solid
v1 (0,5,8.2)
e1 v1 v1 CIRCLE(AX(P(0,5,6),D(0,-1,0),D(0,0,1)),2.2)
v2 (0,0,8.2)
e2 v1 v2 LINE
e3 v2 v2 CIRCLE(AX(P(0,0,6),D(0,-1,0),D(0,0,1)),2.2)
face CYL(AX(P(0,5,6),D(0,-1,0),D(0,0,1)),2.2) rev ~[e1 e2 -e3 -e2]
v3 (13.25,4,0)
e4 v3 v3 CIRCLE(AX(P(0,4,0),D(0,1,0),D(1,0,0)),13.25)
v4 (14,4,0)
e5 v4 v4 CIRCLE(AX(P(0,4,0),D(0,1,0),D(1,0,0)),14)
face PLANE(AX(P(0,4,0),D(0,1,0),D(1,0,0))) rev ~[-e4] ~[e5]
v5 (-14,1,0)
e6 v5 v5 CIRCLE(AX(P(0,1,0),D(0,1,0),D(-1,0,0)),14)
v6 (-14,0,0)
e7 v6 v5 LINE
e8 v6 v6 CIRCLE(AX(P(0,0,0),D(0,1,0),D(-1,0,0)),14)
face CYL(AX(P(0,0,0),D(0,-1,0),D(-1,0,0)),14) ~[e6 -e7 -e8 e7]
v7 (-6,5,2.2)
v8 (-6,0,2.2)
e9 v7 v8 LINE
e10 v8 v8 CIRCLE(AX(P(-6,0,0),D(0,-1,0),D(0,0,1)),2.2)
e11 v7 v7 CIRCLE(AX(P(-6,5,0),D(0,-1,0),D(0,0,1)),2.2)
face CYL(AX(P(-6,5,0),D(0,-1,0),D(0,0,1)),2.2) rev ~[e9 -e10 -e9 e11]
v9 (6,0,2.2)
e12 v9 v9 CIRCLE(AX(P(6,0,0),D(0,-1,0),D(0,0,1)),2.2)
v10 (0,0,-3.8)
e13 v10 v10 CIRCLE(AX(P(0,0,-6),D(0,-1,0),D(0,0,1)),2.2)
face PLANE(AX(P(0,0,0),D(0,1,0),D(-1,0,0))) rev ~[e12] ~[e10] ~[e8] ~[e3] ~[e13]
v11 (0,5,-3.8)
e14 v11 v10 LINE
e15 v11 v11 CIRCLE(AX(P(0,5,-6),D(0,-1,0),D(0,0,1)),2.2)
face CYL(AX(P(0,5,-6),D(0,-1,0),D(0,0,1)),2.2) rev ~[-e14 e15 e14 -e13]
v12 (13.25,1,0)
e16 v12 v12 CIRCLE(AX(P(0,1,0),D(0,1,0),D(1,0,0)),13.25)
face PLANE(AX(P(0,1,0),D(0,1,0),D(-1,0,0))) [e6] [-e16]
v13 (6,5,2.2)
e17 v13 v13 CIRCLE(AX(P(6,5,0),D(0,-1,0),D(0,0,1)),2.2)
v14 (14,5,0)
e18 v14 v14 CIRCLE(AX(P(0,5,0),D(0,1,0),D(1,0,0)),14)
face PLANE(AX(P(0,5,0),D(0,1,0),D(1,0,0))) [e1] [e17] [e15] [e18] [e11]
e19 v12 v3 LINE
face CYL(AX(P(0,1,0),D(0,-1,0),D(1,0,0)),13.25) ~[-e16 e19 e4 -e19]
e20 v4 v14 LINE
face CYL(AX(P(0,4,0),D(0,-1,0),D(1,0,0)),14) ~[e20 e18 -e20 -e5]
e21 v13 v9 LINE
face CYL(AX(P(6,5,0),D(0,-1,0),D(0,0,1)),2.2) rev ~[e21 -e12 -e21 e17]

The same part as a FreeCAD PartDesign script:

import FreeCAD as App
import Part
import Sketcher
from FreeCAD import Vector
Q = App.Units.Quantity

doc = App.newDocument("Part")
body = doc.addObject("PartDesign::Body", "Body")

# Sketch on XZ plane
sketch1 = body.newObject("Sketcher::SketchObject", "Sketch")
sketch1.AttachmentSupport = (doc.getObject("XZ_Plane"), [""])
sketch1.MapMode = "FlatFace"
sketch1.addGeometry(Part.Circle(Vector(0, 0, 0), Vector(0, 0, 1), 14), False)
sketch1.addConstraint([
    Sketcher.Constraint("Coincident", 0, 3, -1, 1),
    Sketcher.Constraint("Diameter", 0, Q("28 mm")),
])
pad1 = body.newObject("PartDesign::Pad", "Pad")
pad1.Profile = sketch1
pad1.Length = 1
pad1.Reversed = True

# Sketch on XZ plane
sketch2 = body.newObject("Sketcher::SketchObject", "Sketch001")
sketch2.AttachmentSupport = (doc.getObject("XZ_Plane"), [""])
sketch2.MapMode = "FlatFace"
sketch2.AttachmentOffset = App.Placement(Vector(0, 0, -1), App.Rotation())
sketch2.addGeometry(Part.Circle(Vector(0, 0, 0), Vector(0, 0, 1), 13.25), False)
sketch2.addConstraint([
    Sketcher.Constraint("Coincident", 0, 3, -1, 1),
    Sketcher.Constraint("Diameter", 0, Q("26.5 mm")),
])
pad2 = body.newObject("PartDesign::Pad", "Pad001")
pad2.Profile = sketch2
pad2.Length = 3
pad2.Reversed = True

# Sketch on XZ plane
sketch3 = body.newObject("Sketcher::SketchObject", "Sketch002")
sketch3.AttachmentSupport = (doc.getObject("XZ_Plane"), [""])
sketch3.MapMode = "FlatFace"
sketch3.AttachmentOffset = App.Placement(Vector(0, 0, -4), App.Rotation())
sketch3.addGeometry(Part.Circle(Vector(0, 0, 0), Vector(0, 0, 1), 14), False)
sketch3.addConstraint([
    Sketcher.Constraint("Coincident", 0, 3, -1, 1),
    Sketcher.Constraint("Diameter", 0, Q("28 mm")),
])
pad3 = body.newObject("PartDesign::Pad", "Pad002")
pad3.Profile = sketch3
pad3.Length = 1
pad3.Reversed = True

# Sketch on XZ plane
sketch4 = body.newObject("Sketcher::SketchObject", "Sketch003")
sketch4.AttachmentSupport = (doc.getObject("XZ_Plane"), [""])
sketch4.MapMode = "FlatFace"
sketch4.AttachmentOffset = App.Placement(Vector(0, 0, -5), App.Rotation())
sketch4.addGeometry([
    Part.Circle(Vector(0, 6, 0), Vector(0, 0, 1), 2.2),
    Part.Circle(Vector(-6, 0, 0), Vector(0, 0, 1), 2.2),
    Part.Circle(Vector(6, 0, 0), Vector(0, 0, 1), 2.2),
    Part.Circle(Vector(0, -6, 0), Vector(0, 0, 1), 2.2),
], False)
sketch4.addConstraint([
    Sketcher.Constraint("Equal", 0, 1),
    Sketcher.Constraint("Equal", 1, 2),
    Sketcher.Constraint("Equal", 2, 3),
    Sketcher.Constraint("Symmetric", 1, 3, 2, 3, -1, 1),
    Sketcher.Constraint("Symmetric", 0, 3, 3, 3, -1, 1),
    Sketcher.Constraint("PointOnObject", 0, 3, -2),
    Sketcher.Constraint("PointOnObject", 1, 3, -1),
    Sketcher.Constraint("Diameter", 0, Q("4.4 mm")),
    Sketcher.Constraint("DistanceY", -1, 1, 0, 3, Q("6 mm")),
    Sketcher.Constraint("DistanceX", 1, 3, -1, 1, Q("6 mm")),
])
doc.recompute()
hole = body.newObject("PartDesign::Hole", "Hole")
hole.Profile = sketch4
hole.ThreadType = "None"
hole.Diameter = 4.4
hole.DepthType = "ThroughAll"
hole.Reversed = True

doc.recompute()
